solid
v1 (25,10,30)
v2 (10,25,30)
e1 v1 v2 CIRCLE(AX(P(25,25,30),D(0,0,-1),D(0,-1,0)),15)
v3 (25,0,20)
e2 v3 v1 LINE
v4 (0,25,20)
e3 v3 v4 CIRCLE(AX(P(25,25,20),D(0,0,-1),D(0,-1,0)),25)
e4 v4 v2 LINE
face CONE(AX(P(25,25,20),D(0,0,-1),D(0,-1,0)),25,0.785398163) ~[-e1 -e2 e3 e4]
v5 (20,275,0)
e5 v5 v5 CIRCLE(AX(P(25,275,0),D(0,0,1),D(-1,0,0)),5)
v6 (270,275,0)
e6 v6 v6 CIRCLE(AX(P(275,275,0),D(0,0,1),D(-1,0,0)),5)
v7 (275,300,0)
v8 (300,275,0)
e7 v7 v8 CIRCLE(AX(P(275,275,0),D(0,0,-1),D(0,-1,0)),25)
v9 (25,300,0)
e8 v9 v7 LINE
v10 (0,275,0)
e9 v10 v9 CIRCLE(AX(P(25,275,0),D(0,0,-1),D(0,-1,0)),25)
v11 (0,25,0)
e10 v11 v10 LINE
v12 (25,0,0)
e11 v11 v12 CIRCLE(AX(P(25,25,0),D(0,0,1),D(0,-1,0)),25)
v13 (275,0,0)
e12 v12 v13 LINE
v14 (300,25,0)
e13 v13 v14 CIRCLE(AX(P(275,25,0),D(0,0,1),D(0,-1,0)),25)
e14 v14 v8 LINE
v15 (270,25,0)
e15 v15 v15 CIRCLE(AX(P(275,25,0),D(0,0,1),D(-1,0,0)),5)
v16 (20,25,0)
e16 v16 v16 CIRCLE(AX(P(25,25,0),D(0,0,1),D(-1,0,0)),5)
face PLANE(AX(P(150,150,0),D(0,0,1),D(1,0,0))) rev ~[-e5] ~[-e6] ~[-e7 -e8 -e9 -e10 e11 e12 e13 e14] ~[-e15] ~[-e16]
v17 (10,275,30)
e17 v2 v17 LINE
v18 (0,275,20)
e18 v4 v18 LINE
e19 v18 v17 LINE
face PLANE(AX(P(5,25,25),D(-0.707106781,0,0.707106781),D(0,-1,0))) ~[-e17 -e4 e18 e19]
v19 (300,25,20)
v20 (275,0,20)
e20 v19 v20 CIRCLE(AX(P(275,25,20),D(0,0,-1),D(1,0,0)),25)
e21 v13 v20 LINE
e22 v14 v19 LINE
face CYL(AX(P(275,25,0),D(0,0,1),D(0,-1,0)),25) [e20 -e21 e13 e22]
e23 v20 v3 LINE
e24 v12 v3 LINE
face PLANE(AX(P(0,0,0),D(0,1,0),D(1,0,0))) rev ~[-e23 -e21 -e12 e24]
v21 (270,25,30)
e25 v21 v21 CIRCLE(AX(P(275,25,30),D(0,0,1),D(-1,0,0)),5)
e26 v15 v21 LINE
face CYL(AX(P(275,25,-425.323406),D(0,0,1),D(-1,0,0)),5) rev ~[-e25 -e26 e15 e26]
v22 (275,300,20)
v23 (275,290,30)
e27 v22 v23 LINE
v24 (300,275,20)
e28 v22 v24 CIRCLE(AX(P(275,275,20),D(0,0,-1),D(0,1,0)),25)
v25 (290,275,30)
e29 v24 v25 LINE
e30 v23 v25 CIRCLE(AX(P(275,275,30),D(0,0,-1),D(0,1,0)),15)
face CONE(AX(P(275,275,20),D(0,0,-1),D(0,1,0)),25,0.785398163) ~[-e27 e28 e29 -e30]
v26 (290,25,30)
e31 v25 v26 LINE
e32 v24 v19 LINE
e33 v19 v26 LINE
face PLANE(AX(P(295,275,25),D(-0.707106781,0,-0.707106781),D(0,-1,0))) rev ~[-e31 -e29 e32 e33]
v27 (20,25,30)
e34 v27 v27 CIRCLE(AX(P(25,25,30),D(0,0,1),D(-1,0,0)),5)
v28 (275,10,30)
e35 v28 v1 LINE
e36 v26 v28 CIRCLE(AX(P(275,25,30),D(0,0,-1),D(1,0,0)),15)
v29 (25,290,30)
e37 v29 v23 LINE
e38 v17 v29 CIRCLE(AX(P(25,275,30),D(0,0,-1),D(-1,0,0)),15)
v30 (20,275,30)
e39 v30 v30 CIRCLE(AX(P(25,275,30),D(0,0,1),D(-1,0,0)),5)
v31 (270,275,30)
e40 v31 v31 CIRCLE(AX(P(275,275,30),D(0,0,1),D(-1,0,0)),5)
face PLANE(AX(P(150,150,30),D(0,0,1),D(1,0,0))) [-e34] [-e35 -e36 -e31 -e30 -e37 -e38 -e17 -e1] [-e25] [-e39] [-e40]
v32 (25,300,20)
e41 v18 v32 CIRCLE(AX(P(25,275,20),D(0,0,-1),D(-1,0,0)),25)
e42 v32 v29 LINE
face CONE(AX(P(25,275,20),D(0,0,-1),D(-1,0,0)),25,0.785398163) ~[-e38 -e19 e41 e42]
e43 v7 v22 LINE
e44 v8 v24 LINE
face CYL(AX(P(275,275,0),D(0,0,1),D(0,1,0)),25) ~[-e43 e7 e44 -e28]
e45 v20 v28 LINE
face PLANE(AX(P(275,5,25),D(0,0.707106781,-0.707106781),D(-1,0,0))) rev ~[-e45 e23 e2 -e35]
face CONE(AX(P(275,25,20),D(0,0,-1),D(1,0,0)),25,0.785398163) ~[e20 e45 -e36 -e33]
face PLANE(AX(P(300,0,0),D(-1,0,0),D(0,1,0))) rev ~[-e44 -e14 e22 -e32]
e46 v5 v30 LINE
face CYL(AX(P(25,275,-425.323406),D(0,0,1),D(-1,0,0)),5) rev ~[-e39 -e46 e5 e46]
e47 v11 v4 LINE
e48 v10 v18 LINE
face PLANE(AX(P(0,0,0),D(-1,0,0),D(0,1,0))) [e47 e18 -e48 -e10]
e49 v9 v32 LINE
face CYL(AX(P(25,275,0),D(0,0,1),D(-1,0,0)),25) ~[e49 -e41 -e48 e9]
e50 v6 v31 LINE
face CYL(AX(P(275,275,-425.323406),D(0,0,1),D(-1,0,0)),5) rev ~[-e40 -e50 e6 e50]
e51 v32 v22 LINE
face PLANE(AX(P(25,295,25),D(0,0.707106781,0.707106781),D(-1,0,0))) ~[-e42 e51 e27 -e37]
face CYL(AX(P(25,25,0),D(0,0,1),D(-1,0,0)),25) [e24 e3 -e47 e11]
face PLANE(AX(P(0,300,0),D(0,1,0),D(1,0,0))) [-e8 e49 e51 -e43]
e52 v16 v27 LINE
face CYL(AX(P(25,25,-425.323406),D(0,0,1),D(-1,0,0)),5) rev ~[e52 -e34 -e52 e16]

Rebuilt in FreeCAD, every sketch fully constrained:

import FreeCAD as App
import Part
import Sketcher


def edges_at(feature, points):
    """Names of the edges that pass closest to the given points."""
    edges = feature.Shape.Edges
    near = lambda p: min(range(len(edges)), key=lambda i: edges[i].distToShape(Part.Vertex(*p))[0])
    return sorted({f"Edge{near(p) + 1}" for p in points})


def add_polygon(sketch, points):
    """Adds a closed chain of lines whose ends are joined by coincident constraints."""
    first, n = sketch.GeometryCount, len(points)
    for a, b in zip(points, points[1:] + points[:1]):
        sketch.addGeometry(Part.LineSegment(App.Vector(*a, 0), App.Vector(*b, 0)), False)
    for i in range(n):
        sketch.addConstraint(Sketcher.Constraint("Coincident", first + i, 2, first + (i + 1) % n, 1))

doc = App.newDocument("Part")
body = doc.addObject("PartDesign::Body", "Body")

sketch1 = body.newObject("Sketcher::SketchObject", "Sketch")
sketch1.AttachmentSupport = (doc.getObject("XY_Plane"), [""])
sketch1.MapMode = "FlatFace"
add_polygon(sketch1, [(0, 300), (0, 0), (300, 0), (300, 300)])
sketch1.addConstraint([
    Sketcher.Constraint("Vertical", 0),
    Sketcher.Constraint("Horizontal", 1),
    Sketcher.Constraint("Vertical", 2),
    Sketcher.Constraint("Horizontal", 3),
    Sketcher.Constraint("Coincident", 0, 2, -1, 1),
    Sketcher.Constraint("Equal", 3, 0),
    Sketcher.Constraint("DistanceX", 1, 1, 1, 2, 300.0),
])
pad1 = body.newObject("PartDesign::Pad", "Pad")
pad1.Profile = sketch1
pad1.Length = 30

sketch2 = body.newObject("Sketcher::SketchObject", "Sketch001")
sketch2.AttachmentSupport = (doc.getObject("XY_Plane"), [""])
sketch2.MapMode = "FlatFace"
sketch2.addGeometry([
    Part.Circle(App.Vector(275, 275, 0), App.Vector(0, 0, 1), 5),
    Part.Circle(App.Vector(25, 275, 0), App.Vector(0, 0, 1), 5),
    Part.Circle(App.Vector(275, 25, 0), App.Vector(0, 0, 1), 5),
    Part.Circle(App.Vector(25, 25, 0), App.Vector(0, 0, 1), 5),
], False)
sketch2.addConstraint([
    Sketcher.Constraint("Equal", 0, 1),
    Sketcher.Constraint("Equal", 1, 2),
    Sketcher.Constraint("Equal", 2, 3),
    Sketcher.Constraint("Horizontal", 0, 3, 1, 3),
    Sketcher.Constraint("Horizontal", 2, 3, 3, 3),
    Sketcher.Constraint("Vertical", 0, 3, 2, 3),
    Sketcher.Constraint("Vertical", 1, 3, 3, 3),
    Sketcher.Constraint("Diameter", 0, 10.0),
    Sketcher.Constraint("DistanceX", -1, 1, 0, 3, 275.0),
    Sketcher.Constraint("DistanceY", -1, 1, 0, 3, 275.0),
    Sketcher.Constraint("DistanceX", -1, 1, 1, 3, 25.0),
    Sketcher.Constraint("DistanceY", -1, 1, 2, 3, 25.0),
])
doc.recompute()
hole = body.newObject("PartDesign::Hole", "Hole")
hole.Profile = sketch2
hole.ThreadType = "None"
hole.Diameter = 10
hole.DepthType = "ThroughAll"
hole.Reversed = True
doc.recompute()

fillet = body.newObject("PartDesign::Fillet", "Fillet")
fillet.Base = (hole, edges_at(hole, [
    (0, 300, 15),
    (0, 0, 15),
    (300, 0, 15),
    (300, 300, 15),
]))
fillet.Radius = 25
doc.recompute()

chamfer = body.newObject("PartDesign::Chamfer", "Chamfer")
chamfer.Base = (fillet, edges_at(fillet, [(0, 150, 30)]))
chamfer.ChamferType = "Two distances"
chamfer.Size = 10
chamfer.Size2 = 10

doc.recompute()
